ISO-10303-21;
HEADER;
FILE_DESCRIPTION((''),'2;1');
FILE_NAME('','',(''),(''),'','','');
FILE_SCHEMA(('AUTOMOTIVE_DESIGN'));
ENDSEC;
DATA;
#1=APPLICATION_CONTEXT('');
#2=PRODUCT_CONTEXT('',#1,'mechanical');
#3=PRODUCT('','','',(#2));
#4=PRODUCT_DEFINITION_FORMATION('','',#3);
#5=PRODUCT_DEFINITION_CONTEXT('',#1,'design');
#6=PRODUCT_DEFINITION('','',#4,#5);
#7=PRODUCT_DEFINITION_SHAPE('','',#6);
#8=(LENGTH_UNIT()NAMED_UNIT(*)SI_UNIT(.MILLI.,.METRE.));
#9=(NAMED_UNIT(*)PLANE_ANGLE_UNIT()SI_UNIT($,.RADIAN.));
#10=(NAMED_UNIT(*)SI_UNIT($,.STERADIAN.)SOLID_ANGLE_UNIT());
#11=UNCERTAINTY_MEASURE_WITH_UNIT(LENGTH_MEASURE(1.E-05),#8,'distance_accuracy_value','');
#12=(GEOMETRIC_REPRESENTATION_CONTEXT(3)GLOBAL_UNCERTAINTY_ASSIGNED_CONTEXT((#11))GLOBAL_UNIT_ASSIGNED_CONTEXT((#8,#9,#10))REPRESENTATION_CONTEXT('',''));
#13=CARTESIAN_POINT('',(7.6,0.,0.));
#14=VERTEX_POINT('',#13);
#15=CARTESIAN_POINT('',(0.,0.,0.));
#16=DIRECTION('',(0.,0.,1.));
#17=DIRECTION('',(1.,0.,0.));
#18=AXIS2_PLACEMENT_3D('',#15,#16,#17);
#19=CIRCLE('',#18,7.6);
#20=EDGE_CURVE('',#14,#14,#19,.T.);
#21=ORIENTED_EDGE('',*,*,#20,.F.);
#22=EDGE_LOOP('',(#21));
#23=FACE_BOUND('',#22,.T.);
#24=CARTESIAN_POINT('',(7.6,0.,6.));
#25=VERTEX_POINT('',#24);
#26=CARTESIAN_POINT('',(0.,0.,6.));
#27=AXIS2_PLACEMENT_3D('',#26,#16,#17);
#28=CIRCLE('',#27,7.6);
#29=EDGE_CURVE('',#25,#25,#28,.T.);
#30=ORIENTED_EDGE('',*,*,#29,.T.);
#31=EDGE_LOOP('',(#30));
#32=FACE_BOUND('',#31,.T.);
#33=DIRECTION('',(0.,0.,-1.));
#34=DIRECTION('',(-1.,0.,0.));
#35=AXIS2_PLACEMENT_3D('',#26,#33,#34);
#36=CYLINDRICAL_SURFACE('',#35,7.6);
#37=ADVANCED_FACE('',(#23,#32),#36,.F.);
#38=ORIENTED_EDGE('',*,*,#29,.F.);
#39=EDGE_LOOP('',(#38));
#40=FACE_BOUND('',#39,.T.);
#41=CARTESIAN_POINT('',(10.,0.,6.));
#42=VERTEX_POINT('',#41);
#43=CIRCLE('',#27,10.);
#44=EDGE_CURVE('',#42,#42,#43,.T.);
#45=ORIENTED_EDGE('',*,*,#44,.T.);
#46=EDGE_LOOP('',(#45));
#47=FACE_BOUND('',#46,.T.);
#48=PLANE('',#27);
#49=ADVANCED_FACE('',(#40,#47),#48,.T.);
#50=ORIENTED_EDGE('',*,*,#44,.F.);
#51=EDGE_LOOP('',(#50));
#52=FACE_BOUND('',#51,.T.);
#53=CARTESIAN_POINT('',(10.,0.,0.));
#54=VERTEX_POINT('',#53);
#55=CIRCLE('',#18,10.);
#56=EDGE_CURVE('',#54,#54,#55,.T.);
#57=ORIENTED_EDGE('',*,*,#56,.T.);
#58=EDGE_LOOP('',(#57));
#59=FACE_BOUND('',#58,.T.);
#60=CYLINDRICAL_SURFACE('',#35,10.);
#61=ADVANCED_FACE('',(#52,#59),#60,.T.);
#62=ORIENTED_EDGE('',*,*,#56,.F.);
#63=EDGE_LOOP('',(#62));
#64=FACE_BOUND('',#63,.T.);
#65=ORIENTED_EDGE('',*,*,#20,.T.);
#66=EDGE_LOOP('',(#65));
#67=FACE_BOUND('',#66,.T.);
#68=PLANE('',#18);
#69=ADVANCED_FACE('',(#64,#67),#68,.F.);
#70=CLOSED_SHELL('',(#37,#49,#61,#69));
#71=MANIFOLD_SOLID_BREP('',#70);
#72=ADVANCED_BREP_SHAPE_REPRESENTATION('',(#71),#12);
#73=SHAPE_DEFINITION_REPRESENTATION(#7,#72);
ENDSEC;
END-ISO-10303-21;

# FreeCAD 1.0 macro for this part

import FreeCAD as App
import Part
import Sketcher
Q = App.Units.Quantity

doc = App.newDocument("Part")
params = doc.addObject("Spreadsheet::Sheet", "Params")
for row, (alias, value) in enumerate([
    ("sketch1_diameter", "20 mm"),
    ("sketch1_diameter2", "15.2 mm"),
    ("pad1_length", "6 mm"),
], start=1):
    params.set(f"A{row}", alias)
    params.set(f"B{row}", "=" + value)
    params.setAlias(f"B{row}", alias)

body = doc.addObject("PartDesign::Body", "Body")

# Sketch on XY plane
sketch1 = body.newObject("Sketcher::SketchObject", "Sketch")
sketch1.AttachmentSupport = (doc.getObject("XY_Plane"), [""])
sketch1.MapMode = "FlatFace"
sketch1.addGeometry([
    Part.Circle(App.Vector(0, 0, 0), App.Vector(0, 0, 1), 10),
    Part.Circle(App.Vector(0, 0, 0), App.Vector(0, 0, 1), 8),
], False)
sketch1.addConstraint([
    Sketcher.Constraint("Coincident", 0, 3, -1, 1),
    Sketcher.Constraint("Coincident", 1, 3, -1, 1),
    Sketcher.Constraint("Diameter", 0, Q("20 mm")),
    Sketcher.Constraint("Diameter", 1, Q("15.2 mm")),
])
sketch1.setExpression("Constraints[2]", "Params.sketch1_diameter")
sketch1.setExpression("Constraints[3]", "Params.sketch1_diameter2")
pad1 = body.newObject("PartDesign::Pad", "Pad")
pad1.Profile = sketch1
pad1.setExpression("Length", "Params.pad1_length")

doc.recompute()
